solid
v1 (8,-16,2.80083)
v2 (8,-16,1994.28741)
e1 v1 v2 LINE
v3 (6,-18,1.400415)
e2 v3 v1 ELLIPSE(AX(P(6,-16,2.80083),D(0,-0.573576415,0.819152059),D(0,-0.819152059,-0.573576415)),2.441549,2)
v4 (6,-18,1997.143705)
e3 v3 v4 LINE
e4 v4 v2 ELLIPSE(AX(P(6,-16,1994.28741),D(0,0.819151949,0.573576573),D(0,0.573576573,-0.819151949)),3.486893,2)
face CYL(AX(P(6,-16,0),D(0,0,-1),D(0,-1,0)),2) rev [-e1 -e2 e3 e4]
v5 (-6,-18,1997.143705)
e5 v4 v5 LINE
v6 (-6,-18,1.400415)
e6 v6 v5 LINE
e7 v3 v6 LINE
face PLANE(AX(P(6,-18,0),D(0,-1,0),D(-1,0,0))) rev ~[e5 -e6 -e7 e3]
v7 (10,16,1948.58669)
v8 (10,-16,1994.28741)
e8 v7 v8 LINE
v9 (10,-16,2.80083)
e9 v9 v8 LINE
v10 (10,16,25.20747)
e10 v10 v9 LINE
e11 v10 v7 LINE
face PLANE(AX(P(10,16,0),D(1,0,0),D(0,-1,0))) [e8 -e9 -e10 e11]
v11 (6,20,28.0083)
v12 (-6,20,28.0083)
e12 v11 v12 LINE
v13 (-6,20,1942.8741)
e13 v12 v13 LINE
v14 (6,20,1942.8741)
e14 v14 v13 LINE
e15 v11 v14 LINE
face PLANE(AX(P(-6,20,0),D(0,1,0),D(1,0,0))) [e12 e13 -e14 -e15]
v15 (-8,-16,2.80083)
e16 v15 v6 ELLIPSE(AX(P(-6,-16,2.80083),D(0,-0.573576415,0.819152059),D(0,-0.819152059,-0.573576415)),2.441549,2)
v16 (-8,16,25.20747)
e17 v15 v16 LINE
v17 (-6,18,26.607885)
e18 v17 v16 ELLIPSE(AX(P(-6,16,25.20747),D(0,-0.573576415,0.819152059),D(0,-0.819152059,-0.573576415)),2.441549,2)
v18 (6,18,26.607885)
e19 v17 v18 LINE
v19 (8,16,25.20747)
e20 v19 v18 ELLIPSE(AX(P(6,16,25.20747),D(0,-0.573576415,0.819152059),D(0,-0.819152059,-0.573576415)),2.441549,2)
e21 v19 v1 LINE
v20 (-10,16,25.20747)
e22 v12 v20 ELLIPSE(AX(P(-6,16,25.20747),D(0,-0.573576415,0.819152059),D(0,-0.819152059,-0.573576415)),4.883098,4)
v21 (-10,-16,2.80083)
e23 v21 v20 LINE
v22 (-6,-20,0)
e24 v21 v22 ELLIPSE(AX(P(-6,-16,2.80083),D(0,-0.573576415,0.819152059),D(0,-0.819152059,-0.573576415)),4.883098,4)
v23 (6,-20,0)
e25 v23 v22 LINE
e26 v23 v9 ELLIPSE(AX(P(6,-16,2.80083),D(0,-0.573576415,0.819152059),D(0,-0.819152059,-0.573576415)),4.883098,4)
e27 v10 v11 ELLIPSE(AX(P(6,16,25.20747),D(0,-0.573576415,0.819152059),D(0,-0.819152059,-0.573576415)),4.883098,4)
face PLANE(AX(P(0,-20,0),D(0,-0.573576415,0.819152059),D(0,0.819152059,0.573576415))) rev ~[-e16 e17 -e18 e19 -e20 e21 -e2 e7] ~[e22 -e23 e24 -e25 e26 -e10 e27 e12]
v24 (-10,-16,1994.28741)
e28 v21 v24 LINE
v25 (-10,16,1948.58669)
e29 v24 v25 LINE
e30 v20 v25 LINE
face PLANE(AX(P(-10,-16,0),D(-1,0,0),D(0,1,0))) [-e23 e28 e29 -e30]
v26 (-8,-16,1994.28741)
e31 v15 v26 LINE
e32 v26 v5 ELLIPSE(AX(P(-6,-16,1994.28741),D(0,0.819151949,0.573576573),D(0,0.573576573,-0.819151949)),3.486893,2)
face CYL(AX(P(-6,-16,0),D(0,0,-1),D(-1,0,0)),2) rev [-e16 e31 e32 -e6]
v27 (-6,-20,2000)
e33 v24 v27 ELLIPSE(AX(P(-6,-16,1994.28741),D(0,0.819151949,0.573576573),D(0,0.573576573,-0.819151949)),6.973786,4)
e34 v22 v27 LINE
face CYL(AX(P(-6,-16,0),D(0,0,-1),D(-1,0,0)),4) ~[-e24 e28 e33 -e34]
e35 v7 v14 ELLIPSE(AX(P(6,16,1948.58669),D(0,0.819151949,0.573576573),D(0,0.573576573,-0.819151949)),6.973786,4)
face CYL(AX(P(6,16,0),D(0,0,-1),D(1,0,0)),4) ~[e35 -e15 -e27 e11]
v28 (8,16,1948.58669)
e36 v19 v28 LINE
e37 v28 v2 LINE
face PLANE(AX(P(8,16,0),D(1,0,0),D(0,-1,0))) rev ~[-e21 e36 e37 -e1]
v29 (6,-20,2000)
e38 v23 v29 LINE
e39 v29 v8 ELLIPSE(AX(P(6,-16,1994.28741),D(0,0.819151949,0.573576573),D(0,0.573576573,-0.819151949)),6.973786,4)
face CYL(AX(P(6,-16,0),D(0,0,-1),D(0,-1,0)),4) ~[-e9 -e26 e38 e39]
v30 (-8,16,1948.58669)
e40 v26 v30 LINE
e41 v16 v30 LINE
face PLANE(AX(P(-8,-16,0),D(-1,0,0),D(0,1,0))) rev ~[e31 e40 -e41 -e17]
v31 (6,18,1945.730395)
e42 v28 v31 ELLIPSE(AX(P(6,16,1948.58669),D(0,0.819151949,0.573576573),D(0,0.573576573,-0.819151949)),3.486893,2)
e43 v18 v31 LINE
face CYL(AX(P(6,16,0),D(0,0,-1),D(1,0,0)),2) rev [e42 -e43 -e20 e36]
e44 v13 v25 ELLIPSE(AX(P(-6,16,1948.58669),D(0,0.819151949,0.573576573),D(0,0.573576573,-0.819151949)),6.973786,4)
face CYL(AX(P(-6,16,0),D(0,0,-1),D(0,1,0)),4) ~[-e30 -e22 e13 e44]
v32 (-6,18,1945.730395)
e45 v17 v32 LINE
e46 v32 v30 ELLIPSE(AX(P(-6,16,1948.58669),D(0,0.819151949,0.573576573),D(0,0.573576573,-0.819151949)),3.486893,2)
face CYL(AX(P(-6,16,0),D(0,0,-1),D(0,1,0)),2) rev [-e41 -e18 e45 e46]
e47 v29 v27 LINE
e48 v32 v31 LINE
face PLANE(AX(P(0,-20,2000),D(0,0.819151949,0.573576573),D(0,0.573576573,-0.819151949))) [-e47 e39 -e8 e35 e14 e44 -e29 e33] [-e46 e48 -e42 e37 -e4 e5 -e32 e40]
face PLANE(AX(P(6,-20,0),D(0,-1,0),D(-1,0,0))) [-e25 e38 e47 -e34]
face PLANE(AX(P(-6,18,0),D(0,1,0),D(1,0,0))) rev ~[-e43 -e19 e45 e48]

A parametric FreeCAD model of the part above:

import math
import FreeCAD as App
import Part
import Sketcher

V = App.Vector
Q = App.Units.Quantity


def add_polygon(sketch, points):
    """Adds a closed chain of lines whose ends are joined by coincident constraints."""
    first, n = sketch.GeometryCount, len(points)
    for a, b in zip(points, points[1:] + points[:1]):
        sketch.addGeometry(Part.LineSegment(App.Vector(*a, 0), App.Vector(*b, 0)), False)
    for i in range(n):
        sketch.addConstraint(Sketcher.Constraint("Coincident", first + i, 2, first + (i + 1) % n, 1))

doc = App.newDocument("Part")
body = doc.addObject("PartDesign::Body", "Body")

sketch1 = doc.addObject("Sketcher::SketchObject", "Sketch")
body.addObject(sketch1)
sketch1.AttachmentSupport = (doc.XY_Plane, [""])
sketch1.MapMode = "FlatFace"
sketch1.addGeometry(Part.LineSegment(V(-10, 16, 0), V(-10, -16, 0)), False)
sketch1.addGeometry(Part.ArcOfCircle(Part.Circle(V(-6, -16, 0), V(0, 0, 1), 4), math.radians(180), math.radians(270)), False)
sketch1.addGeometry(Part.LineSegment(V(-6, -20, 0), V(6, -20, 0)), False)
sketch1.addGeometry(Part.ArcOfCircle(Part.Circle(V(6, -16, 0), V(0, 0, 1), 4), math.radians(-90), math.radians(0)), False)
sketch1.addGeometry(Part.LineSegment(V(10, -16, 0), V(10, 16, 0)), False)
sketch1.addGeometry(Part.ArcOfCircle(Part.Circle(V(6, 16, 0), V(0, 0, 1), 4), math.radians(0), math.radians(90)), False)
sketch1.addGeometry(Part.LineSegment(V(6, 20, 0), V(-6, 20, 0)), False)
sketch1.addGeometry(Part.ArcOfCircle(Part.Circle(V(-6, 16, 0), V(0, 0, 1), 4), math.radians(90), math.radians(180)), False)
sketch1.addGeometry(Part.ArcOfCircle(Part.Circle(V(-6, 16, 0), V(0, 0, 1), 2), math.radians(90), math.radians(180)), False)
sketch1.addGeometry(Part.LineSegment(V(-6, 18, 0), V(6, 18, 0)), False)
sketch1.addGeometry(Part.ArcOfCircle(Part.Circle(V(6, 16, 0), V(0, 0, 1), 2), math.radians(0), math.radians(90)), False)
sketch1.addGeometry(Part.LineSegment(V(8, 16, 0), V(8, -16, 0)), False)
sketch1.addGeometry(Part.ArcOfCircle(Part.Circle(V(6, -16, 0), V(0, 0, 1), 2), math.radians(-90), math.radians(0)), False)
sketch1.addGeometry(Part.LineSegment(V(6, -18, 0), V(-6, -18, 0)), False)
sketch1.addGeometry(Part.ArcOfCircle(Part.Circle(V(-6, -16, 0), V(0, 0, 1), 2), math.radians(180), math.radians(270)), False)
sketch1.addGeometry(Part.LineSegment(V(-8, -16, 0), V(-8, 16, 0)), False)
sketch1.addConstraint(Sketcher.Constraint("Tangent", 0, 2, 1, 1))
sketch1.addConstraint(Sketcher.Constraint("Tangent", 1, 2, 2, 1))
sketch1.addConstraint(Sketcher.Constraint("Tangent", 2, 2, 3, 1))
sketch1.addConstraint(Sketcher.Constraint("Tangent", 3, 2, 4, 1))
sketch1.addConstraint(Sketcher.Constraint("Tangent", 4, 2, 5, 1))
sketch1.addConstraint(Sketcher.Constraint("Tangent", 5, 2, 6, 1))
sketch1.addConstraint(Sketcher.Constraint("Tangent", 6, 2, 7, 1))
sketch1.addConstraint(Sketcher.Constraint("Tangent", 7, 2, 0, 1))
sketch1.addConstraint(Sketcher.Constraint("Tangent", 8, 1, 9, 1))
sketch1.addConstraint(Sketcher.Constraint("Tangent", 9, 2, 10, 2))
sketch1.addConstraint(Sketcher.Constraint("Tangent", 10, 1, 11, 1))
sketch1.addConstraint(Sketcher.Constraint("Tangent", 11, 2, 12, 2))
sketch1.addConstraint(Sketcher.Constraint("Tangent", 12, 1, 13, 1))
sketch1.addConstraint(Sketcher.Constraint("Tangent", 13, 2, 14, 2))
sketch1.addConstraint(Sketcher.Constraint("Tangent", 14, 1, 15, 1))
sketch1.addConstraint(Sketcher.Constraint("Tangent", 15, 2, 8, 2))
sketch1.addConstraint(Sketcher.Constraint("Vertical", 0))
sketch1.addConstraint(Sketcher.Constraint("Horizontal", 2))
sketch1.addConstraint(Sketcher.Constraint("Vertical", 4))
sketch1.addConstraint(Sketcher.Constraint("Horizontal", 6))
sketch1.addConstraint(Sketcher.Constraint("Horizontal", 9))
sketch1.addConstraint(Sketcher.Constraint("Vertical", 11))
sketch1.addConstraint(Sketcher.Constraint("Horizontal", 13))
sketch1.addConstraint(Sketcher.Constraint("Vertical", 15))
sketch1.addConstraint(Sketcher.Constraint("Coincident", 8, 3, 7, 3))
sketch1.addConstraint(Sketcher.Constraint("Coincident", 10, 3, 5, 3))
sketch1.addConstraint(Sketcher.Constraint("Coincident", 12, 3, 3, 3))
sketch1.addConstraint(Sketcher.Constraint("Equal", 1, 3))
sketch1.addConstraint(Sketcher.Constraint("Equal", 3, 5))
sketch1.addConstraint(Sketcher.Constraint("Equal", 5, 7))
sketch1.addConstraint(Sketcher.Constraint("Equal", 12, 14))
sketch1.addConstraint(Sketcher.Constraint("Symmetric", 1, 3, 5, 3, -1, 1))
sketch1.addConstraint(Sketcher.Constraint("Radius", 1, Q("4 mm")))
sketch1.addConstraint(Sketcher.Constraint("Radius", 8, Q("2 mm")))
sketch1.addConstraint(Sketcher.Constraint("DistanceX", 0, 2, -1, 1, Q("10 mm")))
sketch1.addConstraint(Sketcher.Constraint("DistanceY", 1, 2, -1, 1, Q("20 mm")))
pad1 = doc.addObject("PartDesign::Pad", "Pad")
body.addObject(pad1)
pad1.Profile = sketch1
pad1.Length = 2000

sketch2 = doc.addObject("Sketcher::SketchObject", "Sketch001")
body.addObject(sketch2)
sketch2.AttachmentSupport = (doc.YZ_Plane, [""])
sketch2.MapMode = "FlatFace"
add_polygon(sketch2, [(20, 28), (-20, 0), (20, 0)])
add_polygon(sketch2, [(20, 2000), (-20, 2000), (20, 1943)])
sketch2.addConstraint(Sketcher.Constraint("Horizontal", 1))
sketch2.addConstraint(Sketcher.Constraint("Vertical", 2))
sketch2.addConstraint(Sketcher.Constraint("Horizontal", 3))
sketch2.addConstraint(Sketcher.Constraint("Vertical", 5))
sketch2.addConstraint(Sketcher.Constraint("Symmetric", 0, 2, 1, 2, -1, 1))
sketch2.addConstraint(Sketcher.Constraint("Perpendicular", 0, 4))
sketch2.addConstraint(Sketcher.Constraint("Vertical", 0, 2, 3, 2))
sketch2.addConstraint(Sketcher.Constraint("Vertical", 2, 2, 4, 2))
sketch2.addConstraint(Sketcher.Constraint("Angle", 4, Q("-55 deg")))
sketch2.addConstraint(Sketcher.Constraint("DistanceX", 1, 1, 1, 2, Q("40 mm")))
sketch2.addConstraint(Sketcher.Constraint("DistanceY", -1, 1, 3, 2, Q("2000 mm")))
pocket1 = doc.addObject("PartDesign::Pocket", "Pocket")
body.addObject(pocket1)
pocket1.Profile = sketch2
pocket1.Type = "ThroughAll"
pocket1.Midplane = True

doc.recompute()
